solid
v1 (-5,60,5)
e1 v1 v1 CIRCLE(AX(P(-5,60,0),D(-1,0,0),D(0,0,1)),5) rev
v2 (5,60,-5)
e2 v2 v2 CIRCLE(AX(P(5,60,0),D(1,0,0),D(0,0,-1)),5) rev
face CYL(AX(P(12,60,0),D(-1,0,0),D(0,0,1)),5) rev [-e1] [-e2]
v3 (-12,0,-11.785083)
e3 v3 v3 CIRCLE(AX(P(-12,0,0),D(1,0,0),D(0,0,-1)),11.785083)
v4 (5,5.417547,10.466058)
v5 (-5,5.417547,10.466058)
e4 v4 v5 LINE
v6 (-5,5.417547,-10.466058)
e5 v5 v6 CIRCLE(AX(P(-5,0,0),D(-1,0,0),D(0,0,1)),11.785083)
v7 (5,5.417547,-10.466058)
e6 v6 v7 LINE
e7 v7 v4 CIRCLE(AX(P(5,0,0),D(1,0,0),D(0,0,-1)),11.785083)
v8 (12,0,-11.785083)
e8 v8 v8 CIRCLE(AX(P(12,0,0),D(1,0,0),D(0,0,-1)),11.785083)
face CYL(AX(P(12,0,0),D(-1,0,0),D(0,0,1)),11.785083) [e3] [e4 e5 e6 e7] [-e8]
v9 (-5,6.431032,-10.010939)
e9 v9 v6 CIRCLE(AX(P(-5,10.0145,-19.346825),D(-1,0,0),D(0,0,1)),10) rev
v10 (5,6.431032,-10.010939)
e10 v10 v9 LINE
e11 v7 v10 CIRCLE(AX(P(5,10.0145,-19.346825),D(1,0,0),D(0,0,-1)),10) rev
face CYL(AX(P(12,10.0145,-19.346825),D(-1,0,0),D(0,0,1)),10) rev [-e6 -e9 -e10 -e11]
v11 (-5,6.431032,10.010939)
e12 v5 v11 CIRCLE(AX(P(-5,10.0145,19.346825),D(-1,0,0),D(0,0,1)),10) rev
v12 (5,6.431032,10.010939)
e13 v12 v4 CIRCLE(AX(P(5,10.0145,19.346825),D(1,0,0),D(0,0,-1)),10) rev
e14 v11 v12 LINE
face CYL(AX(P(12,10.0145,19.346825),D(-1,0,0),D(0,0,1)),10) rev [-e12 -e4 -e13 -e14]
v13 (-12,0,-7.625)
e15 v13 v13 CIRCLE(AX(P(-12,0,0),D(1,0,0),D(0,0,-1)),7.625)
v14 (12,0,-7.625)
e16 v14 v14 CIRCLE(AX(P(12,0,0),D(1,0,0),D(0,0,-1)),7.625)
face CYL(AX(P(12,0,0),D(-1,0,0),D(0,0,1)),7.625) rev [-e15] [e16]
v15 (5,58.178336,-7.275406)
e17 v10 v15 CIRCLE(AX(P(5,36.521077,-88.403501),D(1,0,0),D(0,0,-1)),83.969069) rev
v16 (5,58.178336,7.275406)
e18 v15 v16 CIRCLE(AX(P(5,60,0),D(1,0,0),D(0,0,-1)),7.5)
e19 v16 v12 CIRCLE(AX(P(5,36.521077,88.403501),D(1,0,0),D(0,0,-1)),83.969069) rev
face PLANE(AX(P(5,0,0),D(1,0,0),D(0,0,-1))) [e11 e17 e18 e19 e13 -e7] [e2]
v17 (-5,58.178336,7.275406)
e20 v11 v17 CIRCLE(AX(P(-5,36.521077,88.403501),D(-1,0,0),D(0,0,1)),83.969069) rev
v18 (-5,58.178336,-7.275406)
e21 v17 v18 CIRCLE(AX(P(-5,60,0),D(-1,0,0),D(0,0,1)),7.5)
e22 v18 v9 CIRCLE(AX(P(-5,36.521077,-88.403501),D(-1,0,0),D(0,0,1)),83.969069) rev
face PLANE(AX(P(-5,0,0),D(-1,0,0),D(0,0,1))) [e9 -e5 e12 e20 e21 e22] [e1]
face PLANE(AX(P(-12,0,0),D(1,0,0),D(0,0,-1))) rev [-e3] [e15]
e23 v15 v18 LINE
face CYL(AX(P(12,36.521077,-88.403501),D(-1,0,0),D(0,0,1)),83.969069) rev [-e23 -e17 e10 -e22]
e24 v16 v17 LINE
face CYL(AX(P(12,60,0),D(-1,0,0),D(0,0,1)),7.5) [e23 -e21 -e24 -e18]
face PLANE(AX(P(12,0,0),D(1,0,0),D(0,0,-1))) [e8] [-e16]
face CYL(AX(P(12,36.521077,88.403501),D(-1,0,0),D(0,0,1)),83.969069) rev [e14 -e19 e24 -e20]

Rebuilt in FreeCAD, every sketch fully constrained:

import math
import FreeCAD as App
import Part
import Sketcher
Q = App.Units.Quantity


def edges_at(feature, points):
    """Names of the edges that pass closest to the given points."""
    edges = feature.Shape.Edges
    near = lambda p: min(range(len(edges)), key=lambda i: edges[i].distToShape(Part.Vertex(*p))[0])
    return sorted({f"Edge{near(p) + 1}" for p in points})

doc = App.newDocument("Part")
body = doc.addObject("PartDesign::Body", "Body")

# Sketch on YZ plane
sketch1 = doc.addObject("Sketcher::SketchObject", "Sketch")
body.addObject(sketch1)
sketch1.AttachmentSupport = (doc.YZ_Plane, [""])
sketch1.MapMode = "FlatFace"
sketch1.addGeometry([
    Part.ArcOfCircle(Part.Circle(App.Vector(0, 0, 0), App.Vector(0, 0, 1), 11.785083), math.radians(60.422273), math.radians(299.577727)),  # 0
    Part.ArcOfCircle(Part.Circle(App.Vector(36.521077, -88.403501, 0), App.Vector(0, 0, 1), 83.969069), math.radians(75.053353), math.radians(111.448049)),  # 1
    Part.ArcOfCircle(Part.Circle(App.Vector(60, 0, 0), App.Vector(0, 0, 1), 7.5), math.radians(-104.057088), math.radians(104.057088)),  # 2
    Part.ArcOfCircle(Part.Circle(App.Vector(36.521077, 88.403501, 0), App.Vector(0, 0, 1), 83.969069), math.radians(-111.448049), math.radians(-75.053353)),  # 3
    Part.Circle(App.Vector(0, 0, 0), App.Vector(0, 0, 1), 7.625),  # 4
    Part.Circle(App.Vector(60, 0, 0), App.Vector(0, 0, 1), 5),  # 5
], False)
sketch1.addConstraint([
    Sketcher.Constraint("Coincident", 0, 2, 1, 2),
    Sketcher.Constraint("Coincident", 1, 1, 2, 1),
    Sketcher.Constraint("Coincident", 2, 2, 3, 2),
    Sketcher.Constraint("Coincident", 3, 1, 0, 1),
    Sketcher.Constraint("Coincident", 0, 3, -1, 1),
    Sketcher.Constraint("Coincident", 4, 3, -1, 1),
    Sketcher.Constraint("Coincident", 5, 3, 2, 3),
    Sketcher.Constraint("Equal", 1, 3),
    Sketcher.Constraint("Symmetric", 1, 3, 3, 3, -1),
    Sketcher.Constraint("PointOnObject", 2, 3, -1),
    Sketcher.Constraint("Diameter", 5, Q("10 mm")),
    Sketcher.Constraint("Radius", 2, Q("7.5 mm")),
    Sketcher.Constraint("Diameter", 4, Q("15.25 mm")),
    Sketcher.Constraint("DistanceX", -1, 1, 2, 3, Q("60 mm")),
    Sketcher.Constraint("Radius", 1, Q("83.969069 mm")),
    Sketcher.Constraint("Radius", 0, Q("11.785083 mm")),
    Sketcher.Constraint("DistanceY", 1, 3, -1, 1, Q("88.403501 mm")),
    Sketcher.Constraint("DistanceX", -1, 1, 0, 2, Q("5.817162 mm")),
])
pad1 = doc.addObject("PartDesign::Pad", "Pad")
body.addObject(pad1)
pad1.Profile = sketch1
pad1.Type = "TwoLengths"
pad1.Length = 12
pad1.Length2 = 12
doc.recompute()

fillet = doc.addObject("PartDesign::Fillet", "Fillet")
body.addObject(fillet)
fillet.Base = (pad1, edges_at(pad1, [(0, 5.817, -10.249), (0, 5.817, 10.249)]))
fillet.Radius = 10

# Sketch on YZ plane
sketch2 = doc.addObject("Sketcher::SketchObject", "Sketch001")
body.addObject(sketch2)
sketch2.AttachmentSupport = (doc.YZ_Plane, [""])
sketch2.MapMode = "FlatFace"
sketch2.AttachmentOffset = App.Placement(App.Vector(0, 0, 5), App.Rotation())
sketch2.addGeometry([
    Part.ArcOfCircle(Part.Circle(App.Vector(36.521077, 88.403501, 0), App.Vector(0, 0, 1), 83.969069), math.radians(-110.998701), math.radians(-75.199227)),  # 0
    Part.ArcOfCircle(Part.Circle(App.Vector(10.0145, 19.346825, 0), App.Vector(0, 0, 1), 10), math.radians(-117.367446), math.radians(-110.998701)),  # 1
    Part.ArcOfCircle(Part.Circle(App.Vector(0, 0, 0), App.Vector(0, 0, 1), 11.785083), math.radians(-62.632554), math.radians(62.632554)),  # 2
    Part.ArcOfCircle(Part.Circle(App.Vector(10.0145, -19.346825, 0), App.Vector(0, 0, 1), 10), math.radians(110.998701), math.radians(117.367446)),  # 3
    Part.ArcOfCircle(Part.Circle(App.Vector(36.521077, -88.403501, 0), App.Vector(0, 0, 1), 83.969069), math.radians(75.199227), math.radians(110.998701)),  # 4
    Part.ArcOfCircle(Part.Circle(App.Vector(36.521168, -88.403158, 0), App.Vector(0, 0, 1), 83.968715), math.radians(75.053353), math.radians(75.199227)),  # 5
    Part.ArcOfCircle(Part.Circle(App.Vector(60, 0, 0), App.Vector(0, 0, 1), 7.5), math.radians(-104.057088), math.radians(-90)),  # 6
    Part.ArcOfCircle(Part.Circle(App.Vector(60, 0, 0), App.Vector(0, 0, 1), 7.5), math.radians(-90), math.radians(104.057088)),  # 7
    Part.ArcOfCircle(Part.Circle(App.Vector(36.521168, 88.403158, 0), App.Vector(0, 0, 1), 83.968715), math.radians(-75.199227), math.radians(-75.053353)),  # 8
    Part.Circle(App.Vector(60, 0, 0), App.Vector(0, 0, 1), 5),  # 9
], False)
sketch2.addConstraint([
    Sketcher.Constraint("Tangent", 0, 1, 1, 2),
    Sketcher.Constraint("Tangent", 1, 1, 2, 2),
    Sketcher.Constraint("Tangent", 2, 1, 3, 2),
    Sketcher.Constraint("Tangent", 3, 1, 4, 2),
    Sketcher.Constraint("Tangent", 4, 1, 5, 2),
    Sketcher.Constraint("Coincident", 5, 1, 6, 1),
    Sketcher.Constraint("Tangent", 6, 2, 7, 1),
    Sketcher.Constraint("Coincident", 7, 2, 8, 2),
    Sketcher.Constraint("Tangent", 8, 1, 0, 2),
    Sketcher.Constraint("Coincident", 2, 3, -1, 1),
    Sketcher.Constraint("Coincident", 9, 3, 6, 3),
    Sketcher.Constraint("Equal", 1, 3),
    Sketcher.Constraint("Equal", 0, 4),
    Sketcher.Constraint("Equal", 6, 7),
    Sketcher.Constraint("Equal", 5, 8),
    Sketcher.Constraint("Symmetric", 0, 3, 4, 3, -1),
    Sketcher.Constraint("PointOnObject", 6, 3, -1),
    Sketcher.Constraint("Vertical", 9, 3, 6, 2),
    Sketcher.Constraint("Vertical", 4, 1, 8, 1),
    Sketcher.Constraint("Diameter", 9, Q("10 mm")),
    Sketcher.Constraint("Radius", 1, Q("10 mm")),
    Sketcher.Constraint("Radius", 6, Q("7.5 mm")),
    Sketcher.Constraint("DistanceX", -1, 1, 6, 3, Q("60 mm")),
    Sketcher.Constraint("Radius", 0, Q("83.969069 mm")),
    Sketcher.Constraint("Radius", 2, Q("11.785083 mm")),
    Sketcher.Constraint("Radius", 5, Q("83.968715 mm")),
    Sketcher.Constraint("DistanceY", -1, 1, 0, 3, Q("88.403501 mm")),
    Sketcher.Constraint("DistanceX", -1, 1, 1, 3, Q("10.0145 mm")),
    Sketcher.Constraint("DistanceY", 4, 1, -1, 1, Q("7.22053 mm")),
])
pocket1 = doc.addObject("PartDesign::Pocket", "Pocket")
body.addObject(pocket1)
pocket1.Profile = sketch2
pocket1.Length = 7
pocket1.Reversed = True

# Sketch on YZ plane
sketch3 = doc.addObject("Sketcher::SketchObject", "Sketch002")
body.addObject(sketch3)
sketch3.AttachmentSupport = (doc.YZ_Plane, [""])
sketch3.MapMode = "FlatFace"
sketch3.AttachmentOffset = App.Placement(App.Vector(0, 0, -12), App.Rotation())
sketch3.addGeometry([
    Part.ArcOfCircle(Part.Circle(App.Vector(36.521077, -88.403501, 0), App.Vector(0, 0, 1), 83.969069), math.radians(75.199227), math.radians(110.998701)),  # 0
    Part.ArcOfCircle(Part.Circle(App.Vector(10.0145, -19.346825, 0), App.Vector(0, 0, 1), 10), math.radians(110.998701), math.radians(117.367446)),  # 1
    Part.ArcOfCircle(Part.Circle(App.Vector(0, 0, 0), App.Vector(0, 0, 1), 11.785083), math.radians(-62.632554), math.radians(62.632554)),  # 2
    Part.ArcOfCircle(Part.Circle(App.Vector(10.0145, 19.346825, 0), App.Vector(0, 0, 1), 10), math.radians(-117.367446), math.radians(-110.998701)),  # 3
    Part.ArcOfCircle(Part.Circle(App.Vector(36.521077, 88.403501, 0), App.Vector(0, 0, 1), 83.969069), math.radians(-110.998701), math.radians(-75.199227)),  # 4
    Part.ArcOfCircle(Part.Circle(App.Vector(36.521168, 88.403158, 0), App.Vector(0, 0, 1), 83.968715), math.radians(-75.199227), math.radians(-75.053353)),  # 5
    Part.ArcOfCircle(Part.Circle(App.Vector(60, 0, 0), App.Vector(0, 0, 1), 7.5), math.radians(90), math.radians(104.057088)),  # 6
    Part.ArcOfCircle(Part.Circle(App.Vector(60, 0, 0), App.Vector(0, 0, 1), 7.5), math.radians(-104.057088), math.radians(90)),  # 7
    Part.ArcOfCircle(Part.Circle(App.Vector(36.521168, -88.403158, 0), App.Vector(0, 0, 1), 83.968715), math.radians(75.053353), math.radians(75.199227)),  # 8
    Part.Circle(App.Vector(60, 0, 0), App.Vector(0, 0, 1), 5),  # 9
], False)
sketch3.addConstraint([
    Sketcher.Constraint("Tangent", 0, 2, 1, 1),
    Sketcher.Constraint("Tangent", 1, 2, 2, 1),
    Sketcher.Constraint("Tangent", 2, 2, 3, 1),
    Sketcher.Constraint("Tangent", 3, 2, 4, 1),
    Sketcher.Constraint("Tangent", 4, 2, 5, 1),
    Sketcher.Constraint("Coincident", 5, 2, 6, 2),
    Sketcher.Constraint("Tangent", 6, 1, 7, 2),
    Sketcher.Constraint("Coincident", 7, 1, 8, 1),
    Sketcher.Constraint("Tangent", 8, 2, 0, 1),
    Sketcher.Constraint("Coincident", 2, 3, -1, 1),
    Sketcher.Constraint("Coincident", 9, 3, 6, 3),
    Sketcher.Constraint("Equal", 1, 3),
    Sketcher.Constraint("Equal", 0, 4),
    Sketcher.Constraint("Equal", 6, 7),
    Sketcher.Constraint("Equal", 5, 8),
    Sketcher.Constraint("Symmetric", 0, 3, 4, 3, -1),
    Sketcher.Constraint("PointOnObject", 6, 3, -1),
    Sketcher.Constraint("Vertical", 9, 3, 6, 1),
    Sketcher.Constraint("Vertical", 4, 2, 8, 2),
    Sketcher.Constraint("Diameter", 9, Q("10 mm")),
    Sketcher.Constraint("Radius", 1, Q("10 mm")),
    Sketcher.Constraint("Radius", 6, Q("7.5 mm")),
    Sketcher.Constraint("DistanceX", -1, 1, 6, 3, Q("60 mm")),
    Sketcher.Constraint("Radius", 0, Q("83.969069 mm")),
    Sketcher.Constraint("Radius", 2, Q("11.785083 mm")),
    Sketcher.Constraint("Radius", 5, Q("83.968715 mm")),
    Sketcher.Constraint("DistanceY", 0, 3, -1, 1, Q("88.403501 mm")),
    Sketcher.Constraint("DistanceX", -1, 1, 1, 3, Q("10.0145 mm")),
    Sketcher.Constraint("DistanceY", -1, 1, 4, 2, Q("7.22053 mm")),
])
pocket2 = doc.addObject("PartDesign::Pocket", "Pocket001")
body.addObject(pocket2)
pocket2.Profile = sketch3
pocket2.Length = 7
pocket2.Reversed = True

doc.recompute()
